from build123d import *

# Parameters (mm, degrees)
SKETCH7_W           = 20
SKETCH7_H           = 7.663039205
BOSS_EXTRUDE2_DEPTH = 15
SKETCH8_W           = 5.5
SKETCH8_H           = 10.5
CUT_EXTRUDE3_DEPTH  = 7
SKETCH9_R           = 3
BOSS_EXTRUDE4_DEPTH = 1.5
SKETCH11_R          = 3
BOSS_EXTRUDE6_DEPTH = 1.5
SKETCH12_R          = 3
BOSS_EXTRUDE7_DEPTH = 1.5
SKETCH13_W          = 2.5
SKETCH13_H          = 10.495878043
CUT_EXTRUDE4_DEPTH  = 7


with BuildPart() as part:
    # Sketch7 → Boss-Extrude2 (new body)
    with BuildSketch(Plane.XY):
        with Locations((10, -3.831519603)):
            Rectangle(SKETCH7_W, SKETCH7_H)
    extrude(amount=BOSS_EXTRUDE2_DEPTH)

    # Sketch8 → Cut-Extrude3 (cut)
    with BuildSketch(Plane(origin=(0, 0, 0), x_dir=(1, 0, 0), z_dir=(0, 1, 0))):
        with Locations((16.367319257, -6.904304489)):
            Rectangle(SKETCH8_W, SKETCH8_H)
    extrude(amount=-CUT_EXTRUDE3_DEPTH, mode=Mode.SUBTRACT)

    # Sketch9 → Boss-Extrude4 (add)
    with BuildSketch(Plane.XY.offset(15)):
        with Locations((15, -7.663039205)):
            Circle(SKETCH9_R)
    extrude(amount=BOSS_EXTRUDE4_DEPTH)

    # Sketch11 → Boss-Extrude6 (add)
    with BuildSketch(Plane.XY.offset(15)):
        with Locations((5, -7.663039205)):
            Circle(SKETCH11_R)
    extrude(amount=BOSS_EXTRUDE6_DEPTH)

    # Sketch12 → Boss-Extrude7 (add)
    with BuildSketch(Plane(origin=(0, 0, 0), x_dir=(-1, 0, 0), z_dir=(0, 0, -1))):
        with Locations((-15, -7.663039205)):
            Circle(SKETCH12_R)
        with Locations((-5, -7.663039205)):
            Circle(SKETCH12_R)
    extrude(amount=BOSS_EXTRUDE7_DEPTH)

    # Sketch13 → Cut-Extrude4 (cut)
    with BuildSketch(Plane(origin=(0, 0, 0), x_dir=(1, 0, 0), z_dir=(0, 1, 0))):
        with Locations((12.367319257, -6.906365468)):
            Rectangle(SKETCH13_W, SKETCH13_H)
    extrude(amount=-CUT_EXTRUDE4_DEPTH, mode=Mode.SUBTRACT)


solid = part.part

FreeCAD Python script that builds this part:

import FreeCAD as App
import Part
import Sketcher
from FreeCAD import Vector
Q = App.Units.Quantity


def add_polygon(sketch, points):
    """Adds a closed chain of lines whose ends are joined by coincident constraints."""
    first, n = sketch.GeometryCount, len(points)
    for a, b in zip(points, points[1:] + points[:1]):
        sketch.addGeometry(Part.LineSegment(App.Vector(*a, 0), App.Vector(*b, 0)), False)
    for i in range(n):
        sketch.addConstraint(Sketcher.Constraint("Coincident", first + i, 2, first + (i + 1) % n, 1))

doc = App.newDocument("Part")
body = doc.addObject("PartDesign::Body", "Body")

# Sketch on XY plane
sketch1 = body.newObject("Sketcher::SketchObject", "Sketch")
sketch1.AttachmentSupport = (doc.getObject("XY_Plane"), [""])
sketch1.MapMode = "FlatFace"
add_polygon(sketch1, [(0, 0), (0, -8), (20, -8), (20, 0)])  # lines 0-3
sketch1.addConstraint(Sketcher.Constraint("Vertical", 0))
sketch1.addConstraint(Sketcher.Constraint("Horizontal", 1))
sketch1.addConstraint(Sketcher.Constraint("Vertical", 2))
sketch1.addConstraint(Sketcher.Constraint("Horizontal", 3))
sketch1.addConstraint(Sketcher.Constraint("Coincident", 3, 2, -1, 1))
sketch1.addConstraint(Sketcher.Constraint("DistanceX", 1, 1, 1, 2, Q("20 mm")))
sketch1.addConstraint(Sketcher.Constraint("DistanceY", 0, 2, 0, 1, Q("7.663039 mm")))
pad1 = body.newObject("PartDesign::Pad", "Pad")
pad1.Profile = sketch1
pad1.Length = 15

# Sketch on XZ plane
sketch2 = body.newObject("Sketcher::SketchObject", "Sketch001")
sketch2.AttachmentSupport = (doc.getObject("XZ_Plane"), [""])
sketch2.MapMode = "FlatFace"
add_polygon(sketch2, [(14, 2), (14, 12), (19, 12), (19, 2)])  # lines 0-3
sketch2.addConstraint(Sketcher.Constraint("Vertical", 0))
sketch2.addConstraint(Sketcher.Constraint("Horizontal", 1))
sketch2.addConstraint(Sketcher.Constraint("Vertical", 2))
sketch2.addConstraint(Sketcher.Constraint("Horizontal", 3))
sketch2.addConstraint(Sketcher.Constraint("DistanceX", 1, 1, 1, 2, Q("5.5 mm")))
sketch2.addConstraint(Sketcher.Constraint("DistanceY", 0, 1, 0, 2, Q("10.5 mm")))
sketch2.addConstraint(Sketcher.Constraint("DistanceX", -1, 1, 0, 2, Q("13.617319 mm")))
sketch2.addConstraint(Sketcher.Constraint("DistanceY", -1, 1, 0, 2, Q("12.154304 mm")))
pocket1 = body.newObject("PartDesign::Pocket", "Pocket")
pocket1.Profile = sketch2
pocket1.Length = 7
pocket1.Reversed = True

# Sketch on XY plane
sketch3 = body.newObject("Sketcher::SketchObject", "Sketch002")
sketch3.AttachmentSupport = (doc.getObject("XY_Plane"), [""])
sketch3.MapMode = "FlatFace"
sketch3.AttachmentOffset = App.Placement(Vector(0, 0, 15), App.Rotation())
sketch3.addGeometry(Part.Circle(Vector(15, -7.7, 0), Vector(0, 0, 1), 3), False)
sketch3.addConstraint(Sketcher.Constraint("Diameter", 0, Q("6 mm")))
sketch3.addConstraint(Sketcher.Constraint("DistanceX", -1, 1, 0, 3, Q("15 mm")))
sketch3.addConstraint(Sketcher.Constraint("DistanceY", 0, 3, -1, 1, Q("7.663039 mm")))
pad2 = body.newObject("PartDesign::Pad", "Pad001")
pad2.Profile = sketch3
pad2.Length = 1.5

# Sketch on XY plane
sketch4 = body.newObject("Sketcher::SketchObject", "Sketch003")
sketch4.AttachmentSupport = (doc.getObject("XY_Plane"), [""])
sketch4.MapMode = "FlatFace"
sketch4.AttachmentOffset = App.Placement(Vector(0, 0, 15), App.Rotation())
sketch4.addGeometry(Part.Circle(Vector(5, -7.7, 0), Vector(0, 0, 1), 3), False)
sketch4.addConstraint(Sketcher.Constraint("Diameter", 0, Q("6 mm")))
sketch4.addConstraint(Sketcher.Constraint("DistanceX", -1, 1, 0, 3, Q("5 mm")))
sketch4.addConstraint(Sketcher.Constraint("DistanceY", 0, 3, -1, 1, Q("7.663039 mm")))
pad3 = body.newObject("PartDesign::Pad", "Pad002")
pad3.Profile = sketch4
pad3.Length = 1.5

# Sketch on XY plane
sketch5 = body.newObject("Sketcher::SketchObject", "Sketch004")
sketch5.AttachmentSupport = (doc.getObject("XY_Plane"), [""])
sketch5.MapMode = "FlatFace"
sketch5.addGeometry(Part.Circle(Vector(15, -7.7, 0), Vector(0, 0, 1), 3), False)
sketch5.addGeometry(Part.Circle(Vector(5, -7.7, 0), Vector(0, 0, 1), 3), False)
sketch5.addConstraint(Sketcher.Constraint("Equal", 0, 1))
sketch5.addConstraint(Sketcher.Constraint("Horizontal", 0, 3, 1, 3))
sketch5.addConstraint(Sketcher.Constraint("Diameter", 0, Q("6 mm")))
sketch5.addConstraint(Sketcher.Constraint("DistanceX", -1, 1, 0, 3, Q("15 mm")))
sketch5.addConstraint(Sketcher.Constraint("DistanceX", -1, 1, 1, 3, Q("5 mm")))
sketch5.addConstraint(Sketcher.Constraint("DistanceY", 0, 3, -1, 1, Q("7.663039 mm")))
pad4 = body.newObject("PartDesign::Pad", "Pad003")
pad4.Profile = sketch5
pad4.Length = 1.5
pad4.Reversed = True

# Sketch on XZ plane
sketch6 = body.newObject("Sketcher::SketchObject", "Sketch005")
sketch6.AttachmentSupport = (doc.getObject("XZ_Plane"), [""])
sketch6.MapMode = "FlatFace"
add_polygon(sketch6, [(11.1, 1.7), (11.1, 12.2), (13.6, 12.2), (13.6, 1.7)])  # lines 0-3
sketch6.addConstraint(Sketcher.Constraint("Vertical", 0))
sketch6.addConstraint(Sketcher.Constraint("Horizontal", 1))
sketch6.addConstraint(Sketcher.Constraint("Vertical", 2))
sketch6.addConstraint(Sketcher.Constraint("Horizontal", 3))
sketch6.addConstraint(Sketcher.Constraint("DistanceX", 1, 1, 1, 2, Q("2.5 mm")))
sketch6.addConstraint(Sketcher.Constraint("DistanceY", 0, 1, 0, 2, Q("10.495878 mm")))
sketch6.addConstraint(Sketcher.Constraint("DistanceX", -1, 1, 0, 2, Q("11.117319 mm")))
sketch6.addConstraint(Sketcher.Constraint("DistanceY", -1, 1, 0, 2, Q("12.154304 mm")))
pocket2 = body.newObject("PartDesign::Pocket", "Pocket001")
pocket2.Profile = sketch6
pocket2.Length = 7
pocket2.Reversed = True

doc.recompute()
